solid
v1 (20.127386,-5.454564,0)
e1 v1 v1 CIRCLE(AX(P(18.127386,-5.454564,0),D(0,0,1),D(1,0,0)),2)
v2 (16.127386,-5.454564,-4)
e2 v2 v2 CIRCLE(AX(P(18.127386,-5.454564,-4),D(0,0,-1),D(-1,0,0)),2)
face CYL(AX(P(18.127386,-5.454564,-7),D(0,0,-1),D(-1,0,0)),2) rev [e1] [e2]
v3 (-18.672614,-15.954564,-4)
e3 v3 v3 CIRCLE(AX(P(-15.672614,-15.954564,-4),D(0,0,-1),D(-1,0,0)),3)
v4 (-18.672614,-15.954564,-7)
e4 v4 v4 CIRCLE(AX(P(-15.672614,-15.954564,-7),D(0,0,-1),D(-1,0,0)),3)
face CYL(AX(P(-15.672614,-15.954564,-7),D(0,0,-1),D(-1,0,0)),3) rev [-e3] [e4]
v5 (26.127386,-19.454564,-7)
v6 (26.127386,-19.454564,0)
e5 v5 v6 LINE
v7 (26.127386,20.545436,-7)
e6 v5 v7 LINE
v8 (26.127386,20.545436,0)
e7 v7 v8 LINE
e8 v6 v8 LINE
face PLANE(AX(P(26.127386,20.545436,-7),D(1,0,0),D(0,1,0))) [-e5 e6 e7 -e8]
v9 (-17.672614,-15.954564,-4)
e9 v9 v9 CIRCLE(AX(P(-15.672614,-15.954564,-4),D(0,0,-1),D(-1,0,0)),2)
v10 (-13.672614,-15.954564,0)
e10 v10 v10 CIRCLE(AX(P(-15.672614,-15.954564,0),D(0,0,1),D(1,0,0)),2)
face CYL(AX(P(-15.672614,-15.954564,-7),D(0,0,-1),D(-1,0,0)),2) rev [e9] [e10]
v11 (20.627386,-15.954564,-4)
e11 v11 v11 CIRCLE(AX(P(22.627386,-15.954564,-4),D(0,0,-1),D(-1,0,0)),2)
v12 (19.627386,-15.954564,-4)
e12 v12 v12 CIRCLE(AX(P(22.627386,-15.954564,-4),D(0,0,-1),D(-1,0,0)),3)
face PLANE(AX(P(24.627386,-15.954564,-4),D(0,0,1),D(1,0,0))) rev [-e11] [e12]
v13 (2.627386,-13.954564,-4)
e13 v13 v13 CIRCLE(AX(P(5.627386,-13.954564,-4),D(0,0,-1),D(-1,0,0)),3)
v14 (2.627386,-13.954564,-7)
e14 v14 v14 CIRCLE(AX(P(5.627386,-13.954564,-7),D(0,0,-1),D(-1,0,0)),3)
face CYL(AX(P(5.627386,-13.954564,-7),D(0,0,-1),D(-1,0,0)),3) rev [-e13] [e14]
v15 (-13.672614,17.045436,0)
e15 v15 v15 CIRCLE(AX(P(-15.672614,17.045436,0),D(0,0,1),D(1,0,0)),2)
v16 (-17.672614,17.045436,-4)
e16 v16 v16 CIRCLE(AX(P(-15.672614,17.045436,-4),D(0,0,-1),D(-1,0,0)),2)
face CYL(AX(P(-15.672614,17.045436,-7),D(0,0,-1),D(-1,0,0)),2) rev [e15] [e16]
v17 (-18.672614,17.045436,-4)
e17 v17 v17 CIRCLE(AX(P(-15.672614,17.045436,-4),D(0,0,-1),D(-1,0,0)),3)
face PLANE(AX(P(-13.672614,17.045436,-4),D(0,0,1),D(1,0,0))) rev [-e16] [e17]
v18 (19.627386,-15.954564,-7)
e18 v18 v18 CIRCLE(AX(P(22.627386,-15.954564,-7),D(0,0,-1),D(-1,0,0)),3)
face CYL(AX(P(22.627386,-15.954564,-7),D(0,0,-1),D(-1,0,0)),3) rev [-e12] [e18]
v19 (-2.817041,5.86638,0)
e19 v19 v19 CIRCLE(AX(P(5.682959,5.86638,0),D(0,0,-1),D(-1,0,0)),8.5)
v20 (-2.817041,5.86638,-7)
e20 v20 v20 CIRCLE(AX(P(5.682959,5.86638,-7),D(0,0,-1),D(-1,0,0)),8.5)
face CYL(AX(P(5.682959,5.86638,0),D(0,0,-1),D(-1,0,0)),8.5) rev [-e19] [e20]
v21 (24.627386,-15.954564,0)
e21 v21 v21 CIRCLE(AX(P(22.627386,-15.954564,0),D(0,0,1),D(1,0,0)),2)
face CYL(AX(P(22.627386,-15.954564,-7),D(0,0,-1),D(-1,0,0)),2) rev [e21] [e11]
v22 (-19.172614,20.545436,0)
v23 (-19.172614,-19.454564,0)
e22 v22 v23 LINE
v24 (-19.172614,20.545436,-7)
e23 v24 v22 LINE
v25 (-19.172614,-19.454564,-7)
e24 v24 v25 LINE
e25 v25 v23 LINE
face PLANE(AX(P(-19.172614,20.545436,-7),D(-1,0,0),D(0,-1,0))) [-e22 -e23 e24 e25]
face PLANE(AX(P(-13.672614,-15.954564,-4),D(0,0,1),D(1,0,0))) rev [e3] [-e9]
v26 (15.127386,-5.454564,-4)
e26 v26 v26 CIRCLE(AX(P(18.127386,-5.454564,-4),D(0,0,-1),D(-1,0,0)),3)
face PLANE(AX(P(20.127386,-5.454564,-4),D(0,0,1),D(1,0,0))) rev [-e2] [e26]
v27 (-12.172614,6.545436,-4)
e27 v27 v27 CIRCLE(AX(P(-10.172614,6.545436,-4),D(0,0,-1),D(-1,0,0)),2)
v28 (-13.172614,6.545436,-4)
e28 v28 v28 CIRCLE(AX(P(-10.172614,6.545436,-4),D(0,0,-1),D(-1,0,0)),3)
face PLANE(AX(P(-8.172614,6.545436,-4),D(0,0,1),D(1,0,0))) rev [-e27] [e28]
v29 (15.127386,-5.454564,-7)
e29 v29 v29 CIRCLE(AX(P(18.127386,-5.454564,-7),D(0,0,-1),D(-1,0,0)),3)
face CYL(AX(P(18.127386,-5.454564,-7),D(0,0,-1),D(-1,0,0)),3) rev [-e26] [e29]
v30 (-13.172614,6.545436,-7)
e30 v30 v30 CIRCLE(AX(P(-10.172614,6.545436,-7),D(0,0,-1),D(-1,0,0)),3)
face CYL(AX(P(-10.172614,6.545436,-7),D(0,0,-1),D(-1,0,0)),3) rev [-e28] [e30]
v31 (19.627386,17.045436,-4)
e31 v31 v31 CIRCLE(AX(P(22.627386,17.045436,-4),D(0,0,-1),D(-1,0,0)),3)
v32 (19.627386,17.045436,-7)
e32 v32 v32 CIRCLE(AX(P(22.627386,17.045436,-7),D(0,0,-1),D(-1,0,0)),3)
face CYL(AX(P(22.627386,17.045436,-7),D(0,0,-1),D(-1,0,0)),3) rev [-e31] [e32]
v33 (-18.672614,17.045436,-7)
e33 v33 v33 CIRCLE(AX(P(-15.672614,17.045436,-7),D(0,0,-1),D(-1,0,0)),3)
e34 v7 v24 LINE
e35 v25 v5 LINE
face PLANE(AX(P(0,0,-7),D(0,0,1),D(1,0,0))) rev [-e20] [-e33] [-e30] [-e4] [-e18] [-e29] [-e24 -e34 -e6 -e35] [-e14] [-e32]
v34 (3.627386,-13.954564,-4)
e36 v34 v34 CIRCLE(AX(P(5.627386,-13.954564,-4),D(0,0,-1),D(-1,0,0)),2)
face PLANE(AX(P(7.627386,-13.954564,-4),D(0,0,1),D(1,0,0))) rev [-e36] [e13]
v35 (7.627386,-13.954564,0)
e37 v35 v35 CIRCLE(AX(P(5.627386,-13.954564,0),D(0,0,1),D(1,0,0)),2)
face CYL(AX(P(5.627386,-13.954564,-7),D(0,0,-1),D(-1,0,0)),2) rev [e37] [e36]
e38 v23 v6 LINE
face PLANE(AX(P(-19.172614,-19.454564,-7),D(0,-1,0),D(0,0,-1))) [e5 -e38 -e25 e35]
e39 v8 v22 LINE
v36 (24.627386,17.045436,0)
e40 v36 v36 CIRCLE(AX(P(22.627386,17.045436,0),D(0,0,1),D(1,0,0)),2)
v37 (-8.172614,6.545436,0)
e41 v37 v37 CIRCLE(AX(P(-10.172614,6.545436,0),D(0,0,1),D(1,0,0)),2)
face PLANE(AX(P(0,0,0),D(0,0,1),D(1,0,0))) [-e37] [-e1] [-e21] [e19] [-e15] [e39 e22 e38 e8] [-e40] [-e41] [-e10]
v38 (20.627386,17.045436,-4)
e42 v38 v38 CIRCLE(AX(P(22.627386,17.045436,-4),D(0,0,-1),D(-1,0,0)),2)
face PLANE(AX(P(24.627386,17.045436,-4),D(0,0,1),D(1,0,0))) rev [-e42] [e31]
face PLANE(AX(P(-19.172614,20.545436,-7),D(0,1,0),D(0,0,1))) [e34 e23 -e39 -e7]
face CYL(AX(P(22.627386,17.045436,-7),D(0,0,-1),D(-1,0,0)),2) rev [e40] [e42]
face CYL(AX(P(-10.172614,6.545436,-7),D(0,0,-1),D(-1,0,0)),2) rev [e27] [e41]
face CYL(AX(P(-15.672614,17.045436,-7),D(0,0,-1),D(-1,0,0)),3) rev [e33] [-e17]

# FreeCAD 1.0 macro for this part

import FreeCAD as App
import Part
import Sketcher

V = App.Vector


def add_polygon(sketch, points):
    """Adds a closed chain of lines whose ends are joined by coincident constraints."""
    first, n = sketch.GeometryCount, len(points)
    for a, b in zip(points, points[1:] + points[:1]):
        sketch.addGeometry(Part.LineSegment(App.Vector(*a, 0), App.Vector(*b, 0)), False)
    for i in range(n):
        sketch.addConstraint(Sketcher.Constraint("Coincident", first + i, 2, first + (i + 1) % n, 1))

doc = App.newDocument("Part")
body = doc.addObject("PartDesign::Body", "Body")

sketch1 = doc.addObject("Sketcher::SketchObject", "Sketch")
body.addObject(sketch1)
sketch1.AttachmentSupport = (doc.XY_Plane, [""])
sketch1.MapMode = "FlatFace"
add_polygon(sketch1, [(-19, 21), (-19, -19), (26, -19), (26, 21)])
sketch1.addConstraint(Sketcher.Constraint("Vertical", 0))
sketch1.addConstraint(Sketcher.Constraint("Horizontal", 1))
sketch1.addConstraint(Sketcher.Constraint("Vertical", 2))
sketch1.addConstraint(Sketcher.Constraint("Horizontal", 3))
sketch1.addConstraint(Sketcher.Constraint("DistanceY", 0, 2, 0, 1, 40.0))
sketch1.addConstraint(Sketcher.Constraint("DistanceX", 1, 1, 1, 2, 45.3))
sketch1.addConstraint(Sketcher.Constraint("DistanceX", 0, 2, -1, 1, 19.172614))
sketch1.addConstraint(Sketcher.Constraint("DistanceY", 0, 2, -1, 1, 19.454564))
pad1 = doc.addObject("PartDesign::Pad", "Pad")
body.addObject(pad1)
pad1.Profile = sketch1
pad1.Length = 7
pad1.Reversed = True

sketch2 = doc.addObject("Sketcher::SketchObject", "Sketch001")
body.addObject(sketch2)
sketch2.AttachmentSupport = (doc.XY_Plane, [""])
sketch2.MapMode = "FlatFace"
sketch2.AttachmentOffset = App.Placement(V(0, 0, -7), App.Rotation())
sketch2.addGeometry(Part.Circle(V(22.6, 17, 0), V(0, 0, 1), 2), False)
sketch2.addGeometry(Part.Circle(V(-15.7, 17, 0), V(0, 0, 1), 2), False)
sketch2.addGeometry(Part.Circle(V(-15.7, -16, 0), V(0, 0, 1), 2), False)
sketch2.addGeometry(Part.Circle(V(22.6, -16, 0), V(0, 0, 1), 2), False)
sketch2.addConstraint(Sketcher.Constraint("Equal", 0, 1))
sketch2.addConstraint(Sketcher.Constraint("Equal", 1, 2))
sketch2.addConstraint(Sketcher.Constraint("Equal", 2, 3))
sketch2.addConstraint(Sketcher.Constraint("Horizontal", 0, 3, 1, 3))
sketch2.addConstraint(Sketcher.Constraint("Horizontal", 2, 3, 3, 3))
sketch2.addConstraint(Sketcher.Constraint("Vertical", 1, 3, 2, 3))
sketch2.addConstraint(Sketcher.Constraint("Vertical", 0, 3, 3, 3))
sketch2.addConstraint(Sketcher.Constraint("Diameter", 0, 4.0))
sketch2.addConstraint(Sketcher.Constraint("DistanceY", 2, 3, 1, 3, 33.0))
sketch2.addConstraint(Sketcher.Constraint("DistanceX", 1, 3, 0, 3, 38.3))
sketch2.addConstraint(Sketcher.Constraint("DistanceX", -1, 1, 0, 3, 22.627386))
sketch2.addConstraint(Sketcher.Constraint("DistanceY", -1, 1, 0, 3, 17.045436))
doc.recompute()
hole = doc.addObject("PartDesign::Hole", "Hole")
body.addObject(hole)
hole.Profile = sketch2
hole.ThreadType = "None"
hole.Diameter = 4
hole.DepthType = "ThroughAll"
hole.HoleCutType = "Counterbore"
hole.HoleCutDiameter = 6
hole.HoleCutDepth = 3
hole.Reversed = True

sketch3 = doc.addObject("Sketcher::SketchObject", "Sketch002")
body.addObject(sketch3)
sketch3.AttachmentSupport = (doc.XY_Plane, [""])
sketch3.MapMode = "FlatFace"
sketch3.AttachmentOffset = App.Placement(V(0, 0, -7), App.Rotation())
sketch3.addGeometry(Part.Circle(V(6, 6, 0), V(0, 0, 1), 8), False)
sketch3.addConstraint(Sketcher.Constraint("Diameter", 0, 17.0))
sketch3.addConstraint(Sketcher.Constraint("DistanceX", -1, 1, 0, 3, 5.682959))
sketch3.addConstraint(Sketcher.Constraint("DistanceY", -1, 1, 0, 3, 5.86638))
pocket1 = doc.addObject("PartDesign::Pocket", "Pocket")
body.addObject(pocket1)
pocket1.Profile = sketch3
pocket1.Length = 7
pocket1.Reversed = True

sketch4 = doc.addObject("Sketcher::SketchObject", "Sketch003")
body.addObject(sketch4)
sketch4.AttachmentSupport = (doc.XY_Plane, [""])
sketch4.MapMode = "FlatFace"
sketch4.AttachmentOffset = App.Placement(V(0, 0, -7), App.Rotation())
sketch4.addGeometry(Part.Circle(V(5.6, -14, 0), V(0, 0, 1), 2), False)
sketch4.addGeometry(Part.Circle(V(18.1, -5.5, 0), V(0, 0, 1), 2), False)
sketch4.addGeometry(Part.Circle(V(-10.2, 6.5, 0), V(0, 0, 1), 2), False)
sketch4.addConstraint(Sketcher.Constraint("Equal", 0, 1))
sketch4.addConstraint(Sketcher.Constraint("Equal", 1, 2))
sketch4.addConstraint(Sketcher.Constraint("Diameter", 0, 4.0))
sketch4.addConstraint(Sketcher.Constraint("DistanceY", 1, 3, 2, 3, 12.0))
sketch4.addConstraint(Sketcher.Constraint("DistanceX", 0, 3, 1, 3, 12.5))
sketch4.addConstraint(Sketcher.Constraint("DistanceY", 0, 3, 1, 3, 8.5))
sketch4.addConstraint(Sketcher.Constraint("DistanceX", 2, 3, 0, 3, 15.8))
sketch4.addConstraint(Sketcher.Constraint("DistanceX", -1, 1, 0, 3, 5.627386))
sketch4.addConstraint(Sketcher.Constraint("DistanceY", 0, 3, -1, 1, 13.954564))
doc.recompute()
hole2 = doc.addObject("PartDesign::Hole", "Hole001")
body.addObject(hole2)
hole2.Profile = sketch4
hole2.ThreadType = "None"
hole2.Diameter = 4
hole2.DepthType = "ThroughAll"
hole2.HoleCutType = "Counterbore"
hole2.HoleCutDiameter = 6
hole2.HoleCutDepth = 3
hole2.Reversed = True

doc.recompute()
